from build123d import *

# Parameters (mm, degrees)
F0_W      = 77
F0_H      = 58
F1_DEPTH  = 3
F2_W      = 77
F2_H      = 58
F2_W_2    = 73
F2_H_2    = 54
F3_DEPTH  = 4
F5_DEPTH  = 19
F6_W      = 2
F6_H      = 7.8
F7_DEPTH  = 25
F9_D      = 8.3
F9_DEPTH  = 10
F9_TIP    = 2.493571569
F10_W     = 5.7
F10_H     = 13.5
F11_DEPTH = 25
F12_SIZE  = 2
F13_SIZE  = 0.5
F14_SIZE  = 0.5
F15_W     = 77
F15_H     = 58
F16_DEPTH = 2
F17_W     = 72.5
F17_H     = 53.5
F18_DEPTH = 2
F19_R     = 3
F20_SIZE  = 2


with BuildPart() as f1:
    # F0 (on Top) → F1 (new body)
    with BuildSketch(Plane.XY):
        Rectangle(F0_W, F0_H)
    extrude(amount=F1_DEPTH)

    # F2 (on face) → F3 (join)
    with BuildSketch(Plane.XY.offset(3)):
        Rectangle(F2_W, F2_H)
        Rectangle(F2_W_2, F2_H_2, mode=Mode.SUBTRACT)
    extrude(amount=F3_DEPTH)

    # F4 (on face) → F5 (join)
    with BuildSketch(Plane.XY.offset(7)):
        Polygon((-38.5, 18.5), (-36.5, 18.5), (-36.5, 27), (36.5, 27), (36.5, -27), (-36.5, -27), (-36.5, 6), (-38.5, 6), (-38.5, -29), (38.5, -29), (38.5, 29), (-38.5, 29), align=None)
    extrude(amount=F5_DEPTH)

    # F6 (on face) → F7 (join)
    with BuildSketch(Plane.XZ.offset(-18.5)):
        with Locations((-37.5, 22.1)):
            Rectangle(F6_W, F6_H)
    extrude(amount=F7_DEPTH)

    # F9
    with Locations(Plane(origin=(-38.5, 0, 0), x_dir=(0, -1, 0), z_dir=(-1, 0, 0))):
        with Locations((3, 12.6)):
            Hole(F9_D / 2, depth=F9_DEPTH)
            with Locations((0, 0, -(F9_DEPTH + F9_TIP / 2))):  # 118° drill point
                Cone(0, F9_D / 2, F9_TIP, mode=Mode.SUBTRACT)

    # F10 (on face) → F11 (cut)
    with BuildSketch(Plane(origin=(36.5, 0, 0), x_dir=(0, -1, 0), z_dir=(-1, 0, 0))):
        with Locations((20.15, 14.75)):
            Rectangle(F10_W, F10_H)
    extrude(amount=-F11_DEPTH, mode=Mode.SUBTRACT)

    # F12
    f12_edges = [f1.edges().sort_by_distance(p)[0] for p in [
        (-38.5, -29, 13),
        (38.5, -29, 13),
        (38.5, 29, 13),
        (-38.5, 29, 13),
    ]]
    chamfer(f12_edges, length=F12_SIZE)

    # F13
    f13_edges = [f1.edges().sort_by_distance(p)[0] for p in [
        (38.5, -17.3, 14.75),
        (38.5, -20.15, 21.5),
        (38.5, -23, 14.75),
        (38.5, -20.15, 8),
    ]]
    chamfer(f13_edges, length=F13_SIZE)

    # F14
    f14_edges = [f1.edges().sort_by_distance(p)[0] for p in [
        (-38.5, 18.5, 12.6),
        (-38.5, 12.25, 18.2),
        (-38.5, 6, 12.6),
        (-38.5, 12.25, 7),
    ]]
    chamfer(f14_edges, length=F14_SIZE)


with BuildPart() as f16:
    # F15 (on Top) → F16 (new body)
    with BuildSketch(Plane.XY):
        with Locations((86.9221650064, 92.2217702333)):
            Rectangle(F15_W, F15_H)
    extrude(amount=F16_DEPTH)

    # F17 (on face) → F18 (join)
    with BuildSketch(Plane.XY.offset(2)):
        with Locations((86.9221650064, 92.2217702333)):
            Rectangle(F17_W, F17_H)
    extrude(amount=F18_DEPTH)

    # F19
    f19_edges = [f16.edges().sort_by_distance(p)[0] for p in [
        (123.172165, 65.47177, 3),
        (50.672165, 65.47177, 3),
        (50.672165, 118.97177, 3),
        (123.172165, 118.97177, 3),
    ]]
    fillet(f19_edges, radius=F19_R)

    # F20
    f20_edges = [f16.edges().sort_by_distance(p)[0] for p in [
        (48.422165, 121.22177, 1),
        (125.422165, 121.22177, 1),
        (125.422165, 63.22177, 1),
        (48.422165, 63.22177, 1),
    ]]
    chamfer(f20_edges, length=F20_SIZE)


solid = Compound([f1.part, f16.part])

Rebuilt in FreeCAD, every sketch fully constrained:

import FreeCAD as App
import Part
import Sketcher
from FreeCAD import Vector
Q = App.Units.Quantity


def edges_at(feature, points):
    """Names of the edges that pass closest to the given points."""
    edges = feature.Shape.Edges
    near = lambda p: min(range(len(edges)), key=lambda i: edges[i].distToShape(Part.Vertex(*p))[0])
    return sorted({f"Edge{near(p) + 1}" for p in points})

doc = App.newDocument("Part")
body = doc.addObject("PartDesign::Body", "Body")

# Sketch on XY plane
sketch1 = body.newObject("Sketcher::SketchObject", "Sketch")
sketch1.AttachmentSupport = (doc.getObject("XY_Plane"), [""])
sketch1.MapMode = "FlatFace"
sketch1.addGeometry(Part.LineSegment(Vector(-38, 29, 0), Vector(-38, -29, 0)), False)
sketch1.addGeometry(Part.LineSegment(Vector(-38, -29, 0), Vector(38, -29, 0)), False)
sketch1.addGeometry(Part.LineSegment(Vector(38, -29, 0), Vector(38, 29, 0)), False)
sketch1.addGeometry(Part.LineSegment(Vector(38, 29, 0), Vector(-38, 29, 0)), False)
sketch1.addConstraint(Sketcher.Constraint("Coincident", 0, 2, 1, 1))
sketch1.addConstraint(Sketcher.Constraint("Coincident", 1, 2, 2, 1))
sketch1.addConstraint(Sketcher.Constraint("Coincident", 2, 2, 3, 1))
sketch1.addConstraint(Sketcher.Constraint("Coincident", 3, 2, 0, 1))
sketch1.addConstraint(Sketcher.Constraint("Vertical", 0))
sketch1.addConstraint(Sketcher.Constraint("Horizontal", 1))
sketch1.addConstraint(Sketcher.Constraint("Vertical", 2))
sketch1.addConstraint(Sketcher.Constraint("Horizontal", 3))
sketch1.addConstraint(Sketcher.Constraint("Symmetric", 0, 2, 2, 2, -1, 1))
sketch1.addConstraint(Sketcher.Constraint("DistanceX", 1, 1, 1, 2, Q("77 mm")))
sketch1.addConstraint(Sketcher.Constraint("DistanceY", 0, 2, 0, 1, Q("58 mm")))
pad1 = body.newObject("PartDesign::Pad", "Pad")
pad1.Profile = sketch1
pad1.Length = 3

# Sketch on XY plane
sketch2 = body.newObject("Sketcher::SketchObject", "Sketch001")
sketch2.AttachmentSupport = (doc.getObject("XY_Plane"), [""])
sketch2.MapMode = "FlatFace"
sketch2.AttachmentOffset = App.Placement(Vector(0, 0, 3), App.Rotation())
sketch2.addGeometry(Part.LineSegment(Vector(-38, 29, 0), Vector(-38, -29, 0)), False)
sketch2.addGeometry(Part.LineSegment(Vector(-38, -29, 0), Vector(38, -29, 0)), False)
sketch2.addGeometry(Part.LineSegment(Vector(38, -29, 0), Vector(38, 29, 0)), False)
sketch2.addGeometry(Part.LineSegment(Vector(38, 29, 0), Vector(-38, 29, 0)), False)
sketch2.addGeometry(Part.LineSegment(Vector(36, -27, 0), Vector(-36, -27, 0)), False)
sketch2.addGeometry(Part.LineSegment(Vector(-36, -27, 0), Vector(-36, 27, 0)), False)
sketch2.addGeometry(Part.LineSegment(Vector(-36, 27, 0), Vector(36, 27, 0)), False)
sketch2.addGeometry(Part.LineSegment(Vector(36, 27, 0), Vector(36, -27, 0)), False)
sketch2.addConstraint(Sketcher.Constraint("Coincident", 0, 2, 1, 1))
sketch2.addConstraint(Sketcher.Constraint("Coincident", 1, 2, 2, 1))
sketch2.addConstraint(Sketcher.Constraint("Coincident", 2, 2, 3, 1))
sketch2.addConstraint(Sketcher.Constraint("Coincident", 3, 2, 0, 1))
sketch2.addConstraint(Sketcher.Constraint("Coincident", 4, 2, 5, 1))
sketch2.addConstraint(Sketcher.Constraint("Coincident", 5, 2, 6, 1))
sketch2.addConstraint(Sketcher.Constraint("Coincident", 6, 2, 7, 1))
sketch2.addConstraint(Sketcher.Constraint("Coincident", 7, 2, 4, 1))
sketch2.addConstraint(Sketcher.Constraint("Vertical", 0))
sketch2.addConstraint(Sketcher.Constraint("Horizontal", 1))
sketch2.addConstraint(Sketcher.Constraint("Vertical", 2))
sketch2.addConstraint(Sketcher.Constraint("Horizontal", 3))
sketch2.addConstraint(Sketcher.Constraint("Horizontal", 4))
sketch2.addConstraint(Sketcher.Constraint("Vertical", 5))
sketch2.addConstraint(Sketcher.Constraint("Horizontal", 6))
sketch2.addConstraint(Sketcher.Constraint("Vertical", 7))
sketch2.addConstraint(Sketcher.Constraint("Symmetric", 0, 2, 2, 2, -1, 1))
sketch2.addConstraint(Sketcher.Constraint("Symmetric", 4, 2, 6, 2, -1, 1))
sketch2.addConstraint(Sketcher.Constraint("DistanceX", 1, 1, 1, 2, Q("77 mm")))
sketch2.addConstraint(Sketcher.Constraint("DistanceX", 4, 2, 4, 1, Q("73 mm")))
sketch2.addConstraint(Sketcher.Constraint("DistanceY", 0, 2, 0, 1, Q("58 mm")))
sketch2.addConstraint(Sketcher.Constraint("DistanceY", 5, 1, 5, 2, Q("54 mm")))
pad2 = body.newObject("PartDesign::Pad", "Pad001")
pad2.Profile = sketch2
pad2.Length = 4

# Sketch on XY plane
sketch3 = body.newObject("Sketcher::SketchObject", "Sketch002")
sketch3.AttachmentSupport = (doc.getObject("XY_Plane"), [""])
sketch3.MapMode = "FlatFace"
sketch3.AttachmentOffset = App.Placement(Vector(0, 0, 7), App.Rotation())
sketch3.addGeometry(Part.LineSegment(Vector(-38.5, 18.5, 0), Vector(-36.5, 18.5, 0)), False)
sketch3.addGeometry(Part.LineSegment(Vector(-36.5, 18.5, 0), Vector(-36.5, 27, 0)), False)
sketch3.addGeometry(Part.LineSegment(Vector(-36.5, 27, 0), Vector(36.5, 27, 0)), False)
sketch3.addGeometry(Part.LineSegment(Vector(36.5, 27, 0), Vector(36.5, -27, 0)), False)
sketch3.addGeometry(Part.LineSegment(Vector(36.5, -27, 0), Vector(-36.5, -27, 0)), False)
sketch3.addGeometry(Part.LineSegment(Vector(-36.5, -27, 0), Vector(-36.5, 6, 0)), False)
sketch3.addGeometry(Part.LineSegment(Vector(-36.5, 6, 0), Vector(-38.5, 6, 0)), False)
sketch3.addGeometry(Part.LineSegment(Vector(-38.5, 6, 0), Vector(-38.5, -29, 0)), False)
sketch3.addGeometry(Part.LineSegment(Vector(-38.5, -29, 0), Vector(38.5, -29, 0)), False)
sketch3.addGeometry(Part.LineSegment(Vector(38.5, -29, 0), Vector(38.5, 29, 0)), False)
sketch3.addGeometry(Part.LineSegment(Vector(38.5, 29, 0), Vector(-38.5, 29, 0)), False)
sketch3.addGeometry(Part.LineSegment(Vector(-38.5, 29, 0), Vector(-38.5, 18.5, 0)), False)
sketch3.addConstraint(Sketcher.Constraint("Coincident", 0, 2, 1, 1))
sketch3.addConstraint(Sketcher.Constraint("Coincident", 1, 2, 2, 1))
sketch3.addConstraint(Sketcher.Constraint("Coincident", 2, 2, 3, 1))
sketch3.addConstraint(Sketcher.Constraint("Coincident", 3, 2, 4, 1))
sketch3.addConstraint(Sketcher.Constraint("Coincident", 4, 2, 5, 1))
sketch3.addConstraint(Sketcher.Constraint("Coincident", 5, 2, 6, 1))
sketch3.addConstraint(Sketcher.Constraint("Coincident", 6, 2, 7, 1))
sketch3.addConstraint(Sketcher.Constraint("Coincident", 7, 2, 8, 1))
sketch3.addConstraint(Sketcher.Constraint("Coincident", 8, 2, 9, 1))
sketch3.addConstraint(Sketcher.Constraint("Coincident", 9, 2, 10, 1))
sketch3.addConstraint(Sketcher.Constraint("Coincident", 10, 2, 11, 1))
sketch3.addConstraint(Sketcher.Constraint("Coincident", 11, 2, 0, 1))
sketch3.addConstraint(Sketcher.Constraint("Horizontal", 0))
sketch3.addConstraint(Sketcher.Constraint("Vertical", 1))
sketch3.addConstraint(Sketcher.Constraint("Horizontal", 2))
sketch3.addConstraint(Sketcher.Constraint("Vertical", 3))
sketch3.addConstraint(Sketcher.Constraint("Horizontal", 4))
sketch3.addConstraint(Sketcher.Constraint("Vertical", 5))
sketch3.addConstraint(Sketcher.Constraint("Horizontal", 6))
sketch3.addConstraint(Sketcher.Constraint("Vertical", 7))
sketch3.addConstraint(Sketcher.Constraint("Horizontal", 8))
sketch3.addConstraint(Sketcher.Constraint("Vertical", 9))
sketch3.addConstraint(Sketcher.Constraint("Horizontal", 10))
sketch3.addConstraint(Sketcher.Constraint("Vertical", 11))
sketch3.addConstraint(Sketcher.Constraint("Symmetric", 1, 2, 3, 2, -1, 1))
sketch3.addConstraint(Sketcher.Constraint("Symmetric", 7, 2, 9, 2, -1, 1))
sketch3.addConstraint(Sketcher.Constraint("Vertical", 1, 2, 4, 2))
sketch3.addConstraint(Sketcher.Constraint("Vertical", 7, 2, 10, 2))
sketch3.addConstraint(Sketcher.Constraint("DistanceX", 0, 1, 0, 2, Q("2 mm")))
sketch3.addConstraint(Sketcher.Constraint("DistanceX", 2, 1, 2, 2, Q("73 mm")))
sketch3.addConstraint(Sketcher.Constraint("DistanceY", 3, 2, 3, 1, Q("54 mm")))
sketch3.addConstraint(Sketcher.Constraint("DistanceY", 5, 1, 5, 2, Q("33 mm")))
sketch3.addConstraint(Sketcher.Constraint("DistanceY", 7, 2, 7, 1, Q("35 mm")))
sketch3.addConstraint(Sketcher.Constraint("DistanceY", 1, 1, 1, 2, Q("8.5 mm")))
pad3 = body.newObject("PartDesign::Pad", "Pad002")
pad3.Profile = sketch3
pad3.Length = 19

# Sketch on XZ plane
sketch4 = body.newObject("Sketcher::SketchObject", "Sketch003")
sketch4.AttachmentSupport = (doc.getObject("XZ_Plane"), [""])
sketch4.MapMode = "FlatFace"
sketch4.AttachmentOffset = App.Placement(Vector(0, 0, -18.5), App.Rotation())
sketch4.addGeometry(Part.LineSegment(Vector(-38.5, 26, 0), Vector(-38.5, 18.2, 0)), False)
sketch4.addGeometry(Part.LineSegment(Vector(-38.5, 18.2, 0), Vector(-36.5, 18.2, 0)), False)
sketch4.addGeometry(Part.LineSegment(Vector(-36.5, 18.2, 0), Vector(-36.5, 26, 0)), False)
sketch4.addGeometry(Part.LineSegment(Vector(-36.5, 26, 0), Vector(-38.5, 26, 0)), False)
sketch4.addConstraint(Sketcher.Constraint("Coincident", 0, 2, 1, 1))
sketch4.addConstraint(Sketcher.Constraint("Coincident", 1, 2, 2, 1))
sketch4.addConstraint(Sketcher.Constraint("Coincident", 2, 2, 3, 1))
sketch4.addConstraint(Sketcher.Constraint("Coincident", 3, 2, 0, 1))
sketch4.addConstraint(Sketcher.Constraint("Vertical", 0))
sketch4.addConstraint(Sketcher.Constraint("Horizontal", 1))
sketch4.addConstraint(Sketcher.Constraint("Vertical", 2))
sketch4.addConstraint(Sketcher.Constraint("Horizontal", 3))
sketch4.addConstraint(Sketcher.Constraint("DistanceX", 1, 1, 1, 2, Q("2 mm")))
sketch4.addConstraint(Sketcher.Constraint("DistanceY", 0, 2, 0, 1, Q("7.8 mm")))
sketch4.addConstraint(Sketcher.Constraint("DistanceY", -1, 1, 2, 2, Q("26 mm")))
sketch4.addConstraint(Sketcher.Constraint("DistanceX", 0, 2, -1, 1, Q("38.5 mm")))
pad4 = body.newObject("PartDesign::Pad", "Pad003")
pad4.Profile = sketch4
pad4.Length = 25

# Sketch on YZ plane
sketch5 = body.newObject("Sketcher::SketchObject", "Sketch004")
sketch5.AttachmentSupport = (doc.getObject("YZ_Plane"), [""])
sketch5.MapMode = "FlatFace"
sketch5.AttachmentOffset = App.Placement(Vector(0, 0, -38.5), App.Rotation())
sketch5.addGeometry(Part.Circle(Vector(-3, 12.6, 0), Vector(0, 0, 1), 4.2), False)
sketch5.addConstraint(Sketcher.Constraint("Diameter", 0, Q("8.3 mm")))
sketch5.addConstraint(Sketcher.Constraint("DistanceX", 0, 3, -1, 1, Q("3 mm")))
sketch5.addConstraint(Sketcher.Constraint("DistanceY", -1, 1, 0, 3, Q("12.6 mm")))
doc.recompute()
hole = body.newObject("PartDesign::Hole", "Hole")
hole.Profile = sketch5
hole.ThreadType = "None"
hole.Diameter = 8.3
hole.DepthType = "Dimension"
hole.Depth = 10
hole.DrillPoint = "Angled"
hole.DrillPointAngle = 118
hole.Reversed = True

# Sketch on YZ plane
sketch6 = body.newObject("Sketcher::SketchObject", "Sketch005")
sketch6.AttachmentSupport = (doc.getObject("YZ_Plane"), [""])
sketch6.MapMode = "FlatFace"
sketch6.AttachmentOffset = App.Placement(Vector(0, 0, 36.5), App.Rotation())
sketch6.addGeometry(Part.LineSegment(Vector(-17, 22, 0), Vector(-17, 8, 0)), False)
sketch6.addGeometry(Part.LineSegment(Vector(-17, 8, 0), Vector(-23, 8, 0)), False)
sketch6.addGeometry(Part.LineSegment(Vector(-23, 8, 0), Vector(-23, 22, 0)), False)
sketch6.addGeometry(Part.LineSegment(Vector(-23, 22, 0), Vector(-17, 22, 0)), False)
sketch6.addConstraint(Sketcher.Constraint("Coincident", 0, 2, 1, 1))
sketch6.addConstraint(Sketcher.Constraint("Coincident", 1, 2, 2, 1))
sketch6.addConstraint(Sketcher.Constraint("Coincident", 2, 2, 3, 1))
sketch6.addConstraint(Sketcher.Constraint("Coincident", 3, 2, 0, 1))
sketch6.addConstraint(Sketcher.Constraint("Vertical", 0))
sketch6.addConstraint(Sketcher.Constraint("Horizontal", 1))
sketch6.addConstraint(Sketcher.Constraint("Vertical", 2))
sketch6.addConstraint(Sketcher.Constraint("Horizontal", 3))
sketch6.addConstraint(Sketcher.Constraint("DistanceX", 1, 2, 1, 1, Q("5.7 mm")))
sketch6.addConstraint(Sketcher.Constraint("DistanceY", 0, 2, 0, 1, Q("13.5 mm")))
sketch6.addConstraint(Sketcher.Constraint("DistanceY", -1, 1, 0, 2, Q("8 mm")))
sketch6.addConstraint(Sketcher.Constraint("DistanceX", 1, 2, -1, 1, Q("23 mm")))
pocket1 = body.newObject("PartDesign::Pocket", "Pocket")
pocket1.Profile = sketch6
pocket1.Length = 25
pocket1.Reversed = True
doc.recompute()

chamfer = body.newObject("PartDesign::Chamfer", "Chamfer")
chamfer.Base = (pocket1, edges_at(pocket1, [
    (-38.5, -29, 13),
    (38.5, -29, 13),
    (38.5, 29, 13),
    (-38.5, 29, 13),
]))
chamfer.Size = 2
doc.recompute()

chamfer2 = body.newObject("PartDesign::Chamfer", "Chamfer001")
chamfer2.Base = (chamfer, edges_at(chamfer, [
    (38.5, -17.3, 14.75),
    (38.5, -20.15, 21.5),
    (38.5, -23, 14.75),
    (38.5, -20.15, 8),
]))
chamfer2.Size = 0.5
doc.recompute()

chamfer3 = body.newObject("PartDesign::Chamfer", "Chamfer002")
chamfer3.Base = (chamfer2, edges_at(chamfer2, [
    (-38.5, 18.5, 12.6),
    (-38.5, 12.25, 18.2),
    (-38.5, 6, 12.6),
    (-38.5, 12.25, 7),
]))
chamfer3.Size = 0.5
body2 = doc.addObject("PartDesign::Body", "Body001")

# Sketch on XY plane
sketch7 = body2.newObject("Sketcher::SketchObject", "Sketch006")
sketch7.AttachmentSupport = (doc.getObject("XY_Plane001"), [""])
sketch7.MapMode = "FlatFace"
sketch7.addGeometry(Part.LineSegment(Vector(48, 121, 0), Vector(48, 63, 0)), False)
sketch7.addGeometry(Part.LineSegment(Vector(48, 63, 0), Vector(125, 63, 0)), False)
sketch7.addGeometry(Part.LineSegment(Vector(125, 63, 0), Vector(125, 121, 0)), False)
sketch7.addGeometry(Part.LineSegment(Vector(125, 121, 0), Vector(48, 121, 0)), False)
sketch7.addConstraint(Sketcher.Constraint("Coincident", 0, 2, 1, 1))
sketch7.addConstraint(Sketcher.Constraint("Coincident", 1, 2, 2, 1))
sketch7.addConstraint(Sketcher.Constraint("Coincident", 2, 2, 3, 1))
sketch7.addConstraint(Sketcher.Constraint("Coincident", 3, 2, 0, 1))
sketch7.addConstraint(Sketcher.Constraint("Vertical", 0))
sketch7.addConstraint(Sketcher.Constraint("Horizontal", 1))
sketch7.addConstraint(Sketcher.Constraint("Vertical", 2))
sketch7.addConstraint(Sketcher.Constraint("Horizontal", 3))
sketch7.addConstraint(Sketcher.Constraint("DistanceX", 1, 1, 1, 2, Q("77 mm")))
sketch7.addConstraint(Sketcher.Constraint("DistanceY", 0, 2, 0, 1, Q("58 mm")))
sketch7.addConstraint(Sketcher.Constraint("DistanceY", -1, 1, 0, 2, Q("63.22177 mm")))
sketch7.addConstraint(Sketcher.Constraint("DistanceX", -1, 1, 0, 2, Q("48.422165 mm")))
pad5 = body2.newObject("PartDesign::Pad", "Pad004")
pad5.Profile = sketch7
pad5.Length = 2

# Sketch on XY plane
sketch8 = body2.newObject("Sketcher::SketchObject", "Sketch007")
sketch8.AttachmentSupport = (doc.getObject("XY_Plane001"), [""])
sketch8.MapMode = "FlatFace"
sketch8.AttachmentOffset = App.Placement(Vector(0, 0, 2), App.Rotation())
sketch8.addGeometry(Part.LineSegment(Vector(51, 119, 0), Vector(51, 65, 0)), False)
sketch8.addGeometry(Part.LineSegment(Vector(51, 65, 0), Vector(123, 65, 0)), False)
sketch8.addGeometry(Part.LineSegment(Vector(123, 65, 0), Vector(123, 119, 0)), False)
sketch8.addGeometry(Part.LineSegment(Vector(123, 119, 0), Vector(51, 119, 0)), False)
sketch8.addConstraint(Sketcher.Constraint("Coincident", 0, 2, 1, 1))
sketch8.addConstraint(Sketcher.Constraint("Coincident", 1, 2, 2, 1))
sketch8.addConstraint(Sketcher.Constraint("Coincident", 2, 2, 3, 1))
sketch8.addConstraint(Sketcher.Constraint("Coincident", 3, 2, 0, 1))
sketch8.addConstraint(Sketcher.Constraint("Vertical", 0))
sketch8.addConstraint(Sketcher.Constraint("Horizontal", 1))
sketch8.addConstraint(Sketcher.Constraint("Vertical", 2))
sketch8.addConstraint(Sketcher.Constraint("Horizontal", 3))
sketch8.addConstraint(Sketcher.Constraint("DistanceX", 1, 1, 1, 2, Q("72.5 mm")))
sketch8.addConstraint(Sketcher.Constraint("DistanceY", 0, 2, 0, 1, Q("53.5 mm")))
sketch8.addConstraint(Sketcher.Constraint("DistanceY", -1, 1, 0, 2, Q("65.47177 mm")))
sketch8.addConstraint(Sketcher.Constraint("DistanceX", -1, 1, 0, 2, Q("50.672165 mm")))
pad6 = body2.newObject("PartDesign::Pad", "Pad005")
pad6.Profile = sketch8
pad6.Length = 2
doc.recompute()

fillet = body2.newObject("PartDesign::Fillet", "Fillet")
fillet.Base = (pad6, edges_at(pad6, [
    (123.172, 65.472, 3),
    (50.672, 65.472, 3),
    (50.672, 118.972, 3),
    (123.172, 118.972, 3),
]))
fillet.Radius = 3
doc.recompute()

chamfer4 = body2.newObject("PartDesign::Chamfer", "Chamfer003")
chamfer4.Base = (fillet, edges_at(fillet, [
    (48.422, 121.222, 1),
    (125.422, 121.222, 1),
    (125.422, 63.222, 1),
    (48.422, 63.222, 1),
]))
chamfer4.Size = 2

doc.recompute()
